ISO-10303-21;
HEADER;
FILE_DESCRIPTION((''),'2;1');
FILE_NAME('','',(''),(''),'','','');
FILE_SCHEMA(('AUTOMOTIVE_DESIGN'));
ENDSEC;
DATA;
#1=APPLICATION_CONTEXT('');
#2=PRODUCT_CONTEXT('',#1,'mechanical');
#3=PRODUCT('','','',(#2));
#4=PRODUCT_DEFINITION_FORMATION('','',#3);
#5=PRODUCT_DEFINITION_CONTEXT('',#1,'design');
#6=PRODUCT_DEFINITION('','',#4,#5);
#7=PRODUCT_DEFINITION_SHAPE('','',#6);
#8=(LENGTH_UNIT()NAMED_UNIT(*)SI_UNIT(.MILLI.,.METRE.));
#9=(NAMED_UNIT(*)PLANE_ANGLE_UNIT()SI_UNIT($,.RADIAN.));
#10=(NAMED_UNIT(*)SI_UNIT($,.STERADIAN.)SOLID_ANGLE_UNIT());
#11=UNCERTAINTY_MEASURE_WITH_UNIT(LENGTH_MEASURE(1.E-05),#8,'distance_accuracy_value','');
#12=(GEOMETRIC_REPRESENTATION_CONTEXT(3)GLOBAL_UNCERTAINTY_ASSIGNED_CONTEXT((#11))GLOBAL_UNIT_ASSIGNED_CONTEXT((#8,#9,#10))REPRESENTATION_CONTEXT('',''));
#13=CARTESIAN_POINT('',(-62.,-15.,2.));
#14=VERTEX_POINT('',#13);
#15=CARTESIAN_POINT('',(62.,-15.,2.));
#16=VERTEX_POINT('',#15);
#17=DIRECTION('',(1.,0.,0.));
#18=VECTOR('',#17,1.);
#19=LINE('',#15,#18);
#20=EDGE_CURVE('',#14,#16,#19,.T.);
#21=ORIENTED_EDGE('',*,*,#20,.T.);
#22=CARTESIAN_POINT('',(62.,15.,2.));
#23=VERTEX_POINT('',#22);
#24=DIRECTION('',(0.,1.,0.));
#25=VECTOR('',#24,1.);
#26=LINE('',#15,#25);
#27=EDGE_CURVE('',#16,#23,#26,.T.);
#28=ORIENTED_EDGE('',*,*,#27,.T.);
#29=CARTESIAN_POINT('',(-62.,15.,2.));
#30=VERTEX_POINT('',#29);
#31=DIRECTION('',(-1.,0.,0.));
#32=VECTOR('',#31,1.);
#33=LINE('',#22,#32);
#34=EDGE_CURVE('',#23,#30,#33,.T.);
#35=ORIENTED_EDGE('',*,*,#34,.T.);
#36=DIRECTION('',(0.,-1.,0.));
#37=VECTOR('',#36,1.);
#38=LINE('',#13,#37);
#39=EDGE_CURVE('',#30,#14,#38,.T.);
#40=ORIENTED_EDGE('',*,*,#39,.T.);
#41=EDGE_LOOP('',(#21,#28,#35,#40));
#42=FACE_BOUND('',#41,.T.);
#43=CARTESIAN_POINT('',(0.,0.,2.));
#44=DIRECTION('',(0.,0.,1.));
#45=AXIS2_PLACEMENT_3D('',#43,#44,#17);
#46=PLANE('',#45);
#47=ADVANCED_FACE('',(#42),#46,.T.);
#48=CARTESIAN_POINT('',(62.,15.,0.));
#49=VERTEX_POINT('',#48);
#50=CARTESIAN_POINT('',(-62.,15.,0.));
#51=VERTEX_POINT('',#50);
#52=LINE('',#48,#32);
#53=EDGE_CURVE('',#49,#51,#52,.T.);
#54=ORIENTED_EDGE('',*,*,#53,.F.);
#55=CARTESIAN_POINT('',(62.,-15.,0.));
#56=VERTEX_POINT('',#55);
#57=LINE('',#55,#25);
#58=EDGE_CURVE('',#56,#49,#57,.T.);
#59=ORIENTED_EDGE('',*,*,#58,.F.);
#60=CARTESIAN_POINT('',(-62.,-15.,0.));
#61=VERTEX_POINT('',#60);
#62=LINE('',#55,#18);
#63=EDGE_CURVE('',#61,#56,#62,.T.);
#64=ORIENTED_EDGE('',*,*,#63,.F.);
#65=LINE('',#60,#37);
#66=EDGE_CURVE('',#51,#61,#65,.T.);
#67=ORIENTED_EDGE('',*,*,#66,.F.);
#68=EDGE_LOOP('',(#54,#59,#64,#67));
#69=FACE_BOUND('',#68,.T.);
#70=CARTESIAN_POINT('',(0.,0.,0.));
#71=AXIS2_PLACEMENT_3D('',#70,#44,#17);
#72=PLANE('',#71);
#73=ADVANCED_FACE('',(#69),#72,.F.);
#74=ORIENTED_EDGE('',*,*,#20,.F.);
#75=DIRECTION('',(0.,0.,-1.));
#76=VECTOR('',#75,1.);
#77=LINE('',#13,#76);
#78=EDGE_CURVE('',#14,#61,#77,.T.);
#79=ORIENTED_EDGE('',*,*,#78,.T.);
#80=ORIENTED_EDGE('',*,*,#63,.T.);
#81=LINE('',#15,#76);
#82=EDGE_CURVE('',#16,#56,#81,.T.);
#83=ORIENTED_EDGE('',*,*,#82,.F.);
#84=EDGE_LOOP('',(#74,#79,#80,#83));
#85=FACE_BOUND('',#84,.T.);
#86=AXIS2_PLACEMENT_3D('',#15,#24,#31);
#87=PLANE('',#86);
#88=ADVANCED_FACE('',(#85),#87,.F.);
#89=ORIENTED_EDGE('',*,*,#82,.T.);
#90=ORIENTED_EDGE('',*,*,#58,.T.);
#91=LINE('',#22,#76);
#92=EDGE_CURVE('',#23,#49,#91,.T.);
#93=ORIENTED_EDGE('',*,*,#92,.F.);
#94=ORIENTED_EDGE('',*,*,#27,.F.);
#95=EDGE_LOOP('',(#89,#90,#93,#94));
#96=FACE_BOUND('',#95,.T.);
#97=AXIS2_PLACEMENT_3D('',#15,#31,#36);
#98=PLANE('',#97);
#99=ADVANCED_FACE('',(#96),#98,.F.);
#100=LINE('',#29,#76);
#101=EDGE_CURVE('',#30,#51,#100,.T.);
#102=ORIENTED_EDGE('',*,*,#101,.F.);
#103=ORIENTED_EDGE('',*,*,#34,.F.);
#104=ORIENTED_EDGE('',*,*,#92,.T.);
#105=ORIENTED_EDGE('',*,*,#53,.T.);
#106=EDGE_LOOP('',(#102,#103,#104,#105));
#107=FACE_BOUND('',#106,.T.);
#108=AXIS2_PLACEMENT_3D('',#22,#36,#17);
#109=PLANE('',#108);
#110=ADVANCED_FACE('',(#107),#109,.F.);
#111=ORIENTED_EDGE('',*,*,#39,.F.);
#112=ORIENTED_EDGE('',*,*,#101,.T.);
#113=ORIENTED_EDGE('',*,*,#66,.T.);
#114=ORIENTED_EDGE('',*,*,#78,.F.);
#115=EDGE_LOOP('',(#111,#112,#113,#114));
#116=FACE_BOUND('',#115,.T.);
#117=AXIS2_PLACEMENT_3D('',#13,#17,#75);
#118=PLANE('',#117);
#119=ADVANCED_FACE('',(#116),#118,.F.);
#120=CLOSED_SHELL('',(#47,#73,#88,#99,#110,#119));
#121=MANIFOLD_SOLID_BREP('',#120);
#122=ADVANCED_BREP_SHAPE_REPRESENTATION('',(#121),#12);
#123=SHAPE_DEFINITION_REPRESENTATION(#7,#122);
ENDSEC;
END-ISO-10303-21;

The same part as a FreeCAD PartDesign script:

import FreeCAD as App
import Part
import Sketcher


def add_polygon(sketch, points):
    """Adds a closed chain of lines whose ends are joined by coincident constraints."""
    first, n = sketch.GeometryCount, len(points)
    for a, b in zip(points, points[1:] + points[:1]):
        sketch.addGeometry(Part.LineSegment(App.Vector(*a, 0), App.Vector(*b, 0)), False)
    for i in range(n):
        sketch.addConstraint(Sketcher.Constraint("Coincident", first + i, 2, first + (i + 1) % n, 1))

doc = App.newDocument("Part")
body = doc.addObject("PartDesign::Body", "Body")

sketch1 = body.newObject("Sketcher::SketchObject", "Sketch")
sketch1.AttachmentSupport = (doc.getObject("XY_Plane"), [""])
sketch1.MapMode = "FlatFace"
add_polygon(sketch1, [(-62, 15), (-62, -15), (62, -15), (62, 15)])
sketch1.addConstraint(Sketcher.Constraint("Vertical", 0))
sketch1.addConstraint(Sketcher.Constraint("Horizontal", 1))
sketch1.addConstraint(Sketcher.Constraint("Vertical", 2))
sketch1.addConstraint(Sketcher.Constraint("Horizontal", 3))
sketch1.addConstraint(Sketcher.Constraint("Symmetric", 0, 2, 2, 2, -1, 1))
sketch1.addConstraint(Sketcher.Constraint("DistanceX", 1, 1, 1, 2, 124.0))
sketch1.addConstraint(Sketcher.Constraint("DistanceY", 0, 2, 0, 1, 30.0))
pad1 = body.newObject("PartDesign::Pad", "Pad")
pad1.Profile = sketch1
pad1.Length = 2

doc.recompute()
